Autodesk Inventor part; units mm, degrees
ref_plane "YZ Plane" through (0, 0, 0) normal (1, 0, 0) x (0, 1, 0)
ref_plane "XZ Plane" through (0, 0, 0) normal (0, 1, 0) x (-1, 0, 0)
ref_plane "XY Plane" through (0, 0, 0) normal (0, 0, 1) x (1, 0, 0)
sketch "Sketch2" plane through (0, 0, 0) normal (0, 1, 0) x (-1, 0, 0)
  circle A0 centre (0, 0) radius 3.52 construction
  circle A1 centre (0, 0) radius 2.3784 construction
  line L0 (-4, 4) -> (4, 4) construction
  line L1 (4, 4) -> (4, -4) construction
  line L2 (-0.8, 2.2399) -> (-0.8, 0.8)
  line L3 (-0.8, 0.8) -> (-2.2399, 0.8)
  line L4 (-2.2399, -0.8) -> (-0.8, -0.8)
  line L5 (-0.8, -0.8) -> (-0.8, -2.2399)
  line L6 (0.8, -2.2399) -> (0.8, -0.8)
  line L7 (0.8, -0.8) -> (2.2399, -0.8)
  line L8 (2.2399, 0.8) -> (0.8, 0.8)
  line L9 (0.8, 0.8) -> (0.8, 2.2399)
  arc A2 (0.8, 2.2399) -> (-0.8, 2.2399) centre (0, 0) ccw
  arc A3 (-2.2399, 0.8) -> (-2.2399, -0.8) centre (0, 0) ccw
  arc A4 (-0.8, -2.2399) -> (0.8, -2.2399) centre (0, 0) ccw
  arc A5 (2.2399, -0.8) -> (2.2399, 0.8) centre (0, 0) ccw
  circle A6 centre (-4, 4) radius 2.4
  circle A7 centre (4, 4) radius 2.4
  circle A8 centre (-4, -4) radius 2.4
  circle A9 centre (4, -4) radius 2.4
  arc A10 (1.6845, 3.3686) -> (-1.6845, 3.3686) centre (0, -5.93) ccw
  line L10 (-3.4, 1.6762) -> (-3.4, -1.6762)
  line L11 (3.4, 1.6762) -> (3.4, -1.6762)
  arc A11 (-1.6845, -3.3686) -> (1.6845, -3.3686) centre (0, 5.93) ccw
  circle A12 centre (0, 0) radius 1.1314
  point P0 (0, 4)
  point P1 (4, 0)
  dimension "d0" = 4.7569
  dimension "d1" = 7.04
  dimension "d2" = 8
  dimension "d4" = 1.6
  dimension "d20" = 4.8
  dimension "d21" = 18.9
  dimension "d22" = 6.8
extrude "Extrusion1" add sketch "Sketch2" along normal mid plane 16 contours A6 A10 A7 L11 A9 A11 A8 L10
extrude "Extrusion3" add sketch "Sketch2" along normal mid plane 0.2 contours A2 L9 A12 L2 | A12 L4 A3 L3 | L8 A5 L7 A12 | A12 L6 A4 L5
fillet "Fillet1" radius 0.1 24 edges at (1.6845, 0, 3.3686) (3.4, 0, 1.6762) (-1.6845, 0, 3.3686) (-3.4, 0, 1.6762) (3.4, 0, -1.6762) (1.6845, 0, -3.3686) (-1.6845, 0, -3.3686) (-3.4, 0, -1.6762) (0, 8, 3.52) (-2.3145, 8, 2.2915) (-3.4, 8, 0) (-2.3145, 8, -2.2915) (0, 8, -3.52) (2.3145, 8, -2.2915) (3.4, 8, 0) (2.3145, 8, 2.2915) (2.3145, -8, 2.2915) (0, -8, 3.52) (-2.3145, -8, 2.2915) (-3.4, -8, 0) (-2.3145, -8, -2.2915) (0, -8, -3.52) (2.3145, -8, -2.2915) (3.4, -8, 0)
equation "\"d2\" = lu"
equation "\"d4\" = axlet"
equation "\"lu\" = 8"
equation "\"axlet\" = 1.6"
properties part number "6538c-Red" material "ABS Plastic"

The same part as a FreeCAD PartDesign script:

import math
import FreeCAD as App
import Part
import Sketcher
from FreeCAD import Vector
Q = App.Units.Quantity


def edges_at(feature, points):
    """Names of the edges that pass closest to the given points."""
    edges = feature.Shape.Edges
    near = lambda p: min(range(len(edges)), key=lambda i: edges[i].distToShape(Part.Vertex(*p))[0])
    return sorted({f"Edge{near(p) + 1}" for p in points})

doc = App.newDocument("Part")
body = doc.addObject("PartDesign::Body", "Body")

sketch1 = body.newObject("Sketcher::SketchObject", "Sketch")
sketch1.AttachmentSupport = (doc.getObject("XZ_Plane"), [""])
sketch1.MapMode = "FlatFace"
sketch1.addGeometry(Part.ArcOfCircle(Part.Circle(Vector(4, 4, 0), Vector(0, 0, 1), 2.4), math.radians(-164.747184), math.radians(-104.477453)), False)
sketch1.addGeometry(Part.LineSegment(Vector(3.4, 1.6762, 0), Vector(3.4, -1.6762, 0)), False)
sketch1.addGeometry(Part.ArcOfCircle(Part.Circle(Vector(4, -4, 0), Vector(0, 0, 1), 2.4), math.radians(104.477453), math.radians(164.747184)), False)
sketch1.addGeometry(Part.ArcOfCircle(Part.Circle(Vector(0, 5.93, 0), Vector(0, 0, 1), 9.449947), math.radians(-100.268133), math.radians(-79.731867)), False)
sketch1.addGeometry(Part.ArcOfCircle(Part.Circle(Vector(-4, -4, 0), Vector(0, 0, 1), 2.4), math.radians(15.252816), math.radians(75.522547)), False)
sketch1.addGeometry(Part.LineSegment(Vector(-3.4, -1.6762, 0), Vector(-3.4, 1.6762, 0)), False)
sketch1.addGeometry(Part.ArcOfCircle(Part.Circle(Vector(-4, 4, 0), Vector(0, 0, 1), 2.4), math.radians(-75.522547), math.radians(-15.252816)), False)
sketch1.addGeometry(Part.ArcOfCircle(Part.Circle(Vector(0, -5.93, 0), Vector(0, 0, 1), 9.449947), math.radians(79.731867), math.radians(100.268133)), False)
sketch1.addGeometry(Part.LineSegment(Vector(0.8, 0.8, 0), Vector(0.8, 2.2399, 0)), False)
sketch1.addGeometry(Part.ArcOfCircle(Part.Circle(Vector(0, 0, 0), Vector(0, 0, 1), 2.378477), math.radians(70.345366), math.radians(109.654634)), False)
sketch1.addGeometry(Part.LineSegment(Vector(-0.8, 2.2399, 0), Vector(-0.8, 0.8, 0)), False)
sketch1.addGeometry(Part.LineSegment(Vector(-0.8, 0.8, 0), Vector(-2.2399, 0.8, 0)), False)
sketch1.addGeometry(Part.ArcOfCircle(Part.Circle(Vector(0, 0, 0), Vector(0, 0, 1), 2.378477), math.radians(160.345366), math.radians(199.654634)), False)
sketch1.addGeometry(Part.LineSegment(Vector(-2.2399, -0.8, 0), Vector(-0.8, -0.8, 0)), False)
sketch1.addGeometry(Part.LineSegment(Vector(-0.8, -0.8, 0), Vector(-0.8, -2.2399, 0)), False)
sketch1.addGeometry(Part.ArcOfCircle(Part.Circle(Vector(0, 0, 0), Vector(0, 0, 1), 2.378477), math.radians(-109.654634), math.radians(-70.345366)), False)
sketch1.addGeometry(Part.LineSegment(Vector(0.8, -2.2399, 0), Vector(0.8, -0.8, 0)), False)
sketch1.addGeometry(Part.LineSegment(Vector(0.8, -0.8, 0), Vector(2.2399, -0.8, 0)), False)
sketch1.addGeometry(Part.ArcOfCircle(Part.Circle(Vector(0, 0, 0), Vector(0, 0, 1), 2.378477), math.radians(-19.654634), math.radians(19.654634)), False)
sketch1.addGeometry(Part.LineSegment(Vector(2.2399, 0.8, 0), Vector(0.8, 0.8, 0)), False)
sketch1.addConstraint(Sketcher.Constraint("Coincident", 0, 2, 1, 1))
sketch1.addConstraint(Sketcher.Constraint("Coincident", 1, 2, 2, 1))
sketch1.addConstraint(Sketcher.Constraint("Coincident", 2, 2, 3, 2))
sketch1.addConstraint(Sketcher.Constraint("Coincident", 3, 1, 4, 1))
sketch1.addConstraint(Sketcher.Constraint("Coincident", 4, 2, 5, 1))
sketch1.addConstraint(Sketcher.Constraint("Coincident", 5, 2, 6, 1))
sketch1.addConstraint(Sketcher.Constraint("Coincident", 6, 2, 7, 2))
sketch1.addConstraint(Sketcher.Constraint("Coincident", 7, 1, 0, 1))
sketch1.addConstraint(Sketcher.Constraint("Coincident", 8, 2, 9, 1))
sketch1.addConstraint(Sketcher.Constraint("Coincident", 9, 2, 10, 1))
sketch1.addConstraint(Sketcher.Constraint("Coincident", 10, 2, 11, 1))
sketch1.addConstraint(Sketcher.Constraint("Coincident", 11, 2, 12, 1))
sketch1.addConstraint(Sketcher.Constraint("Coincident", 12, 2, 13, 1))
sketch1.addConstraint(Sketcher.Constraint("Coincident", 13, 2, 14, 1))
sketch1.addConstraint(Sketcher.Constraint("Coincident", 14, 2, 15, 1))
sketch1.addConstraint(Sketcher.Constraint("Coincident", 15, 2, 16, 1))
sketch1.addConstraint(Sketcher.Constraint("Coincident", 16, 2, 17, 1))
sketch1.addConstraint(Sketcher.Constraint("Coincident", 17, 2, 18, 1))
sketch1.addConstraint(Sketcher.Constraint("Coincident", 18, 2, 19, 1))
sketch1.addConstraint(Sketcher.Constraint("Coincident", 19, 2, 8, 1))
sketch1.addConstraint(Sketcher.Constraint("Vertical", 1))
sketch1.addConstraint(Sketcher.Constraint("Vertical", 5))
sketch1.addConstraint(Sketcher.Constraint("Vertical", 8))
sketch1.addConstraint(Sketcher.Constraint("Vertical", 10))
sketch1.addConstraint(Sketcher.Constraint("Horizontal", 11))
sketch1.addConstraint(Sketcher.Constraint("Horizontal", 13))
sketch1.addConstraint(Sketcher.Constraint("Vertical", 14))
sketch1.addConstraint(Sketcher.Constraint("Vertical", 16))
sketch1.addConstraint(Sketcher.Constraint("Horizontal", 17))
sketch1.addConstraint(Sketcher.Constraint("Horizontal", 19))
sketch1.addConstraint(Sketcher.Constraint("Coincident", 9, 3, -1, 1))
sketch1.addConstraint(Sketcher.Constraint("Coincident", 12, 3, -1, 1))
sketch1.addConstraint(Sketcher.Constraint("Coincident", 15, 3, -1, 1))
sketch1.addConstraint(Sketcher.Constraint("Coincident", 18, 3, -1, 1))
sketch1.addConstraint(Sketcher.Constraint("Equal", 0, 2))
sketch1.addConstraint(Sketcher.Constraint("Equal", 2, 4))
sketch1.addConstraint(Sketcher.Constraint("Equal", 4, 6))
sketch1.addConstraint(Sketcher.Constraint("Equal", 3, 7))
sketch1.addConstraint(Sketcher.Constraint("Equal", 9, 12))
sketch1.addConstraint(Sketcher.Constraint("Equal", 12, 15))
sketch1.addConstraint(Sketcher.Constraint("Equal", 15, 18))
sketch1.addConstraint(Sketcher.Constraint("Symmetric", 0, 3, 4, 3, -1, 1))
sketch1.addConstraint(Sketcher.Constraint("Symmetric", 2, 3, 6, 3, -1, 1))
sketch1.addConstraint(Sketcher.Constraint("Symmetric", 3, 3, 7, 3, -1, 1))
sketch1.addConstraint(Sketcher.Constraint("Symmetric", 10, 2, 16, 2, -1, 1))
sketch1.addConstraint(Sketcher.Constraint("Symmetric", 13, 2, 19, 2, -1, 1))
sketch1.addConstraint(Sketcher.Constraint("Symmetric", 2, 3, 4, 3, -2))
sketch1.addConstraint(Sketcher.Constraint("Symmetric", 13, 2, 16, 2, -2))
sketch1.addConstraint(Sketcher.Constraint("PointOnObject", 3, 3, -2))
sketch1.addConstraint(Sketcher.Constraint("Horizontal", 1, 2, 4, 2))
sketch1.addConstraint(Sketcher.Constraint("Equal", 19, 8))
sketch1.addConstraint(Sketcher.Constraint("Radius", 0, Q("2.4 mm")))
sketch1.addConstraint(Sketcher.Constraint("Radius", 3, Q("9.45 mm")))
sketch1.addConstraint(Sketcher.Constraint("DistanceY", 2, 3, 0, 3, Q("8 mm")))
sketch1.addConstraint(Sketcher.Constraint("DistanceX", 4, 3, 2, 3, Q("8 mm")))
sketch1.addConstraint(Sketcher.Constraint("Radius", 9, Q("2.3785 mm")))
sketch1.addConstraint(Sketcher.Constraint("DistanceX", 9, 2, 8, 2, Q("1.6 mm")))
sketch1.addConstraint(Sketcher.Constraint("DistanceX", -1, 1, 0, 2, Q("3.4 mm")))
sketch1.addConstraint(Sketcher.Constraint("DistanceY", -1, 1, 3, 3, Q("5.93 mm")))
pad1 = body.newObject("PartDesign::Pad", "Pad")
pad1.Profile = sketch1
pad1.Length = 16
pad1.Midplane = True

sketch2 = body.newObject("Sketcher::SketchObject", "Sketch001")
sketch2.AttachmentSupport = (doc.getObject("XZ_Plane"), [""])
sketch2.MapMode = "FlatFace"
sketch2.addGeometry(Part.ArcOfCircle(Part.Circle(Vector(0, 0, 0), Vector(0, 0, 1), 2.378477), math.radians(70.345366), math.radians(109.654634)), False)
sketch2.addGeometry(Part.LineSegment(Vector(0.8, 2.2399, 0), Vector(0.8, 0.8, 0)), False)
sketch2.addGeometry(Part.ArcOfCircle(Part.Circle(Vector(0, 0, 0), Vector(0, 0, 1), 1.1314), math.radians(45), math.radians(135)), False)
sketch2.addGeometry(Part.LineSegment(Vector(-0.8, 0.8, 0), Vector(-0.8, 2.2399, 0)), False)
sketch2.addGeometry(Part.ArcOfCircle(Part.Circle(Vector(0, 0, 0), Vector(0, 0, 1), 1.1314), math.radians(-45), math.radians(45)), False)
sketch2.addGeometry(Part.LineSegment(Vector(0.8, 0.8, 0), Vector(2.2399, 0.8, 0)), False)
sketch2.addGeometry(Part.ArcOfCircle(Part.Circle(Vector(0, 0, 0), Vector(0, 0, 1), 2.378477), math.radians(-19.654634), math.radians(19.654634)), False)
sketch2.addGeometry(Part.LineSegment(Vector(2.2399, -0.8, 0), Vector(0.8, -0.8, 0)), False)
sketch2.addGeometry(Part.LineSegment(Vector(-2.2399, 0.8, 0), Vector(-0.8, 0.8, 0)), False)
sketch2.addGeometry(Part.ArcOfCircle(Part.Circle(Vector(0, 0, 0), Vector(0, 0, 1), 1.1314), math.radians(135), math.radians(225)), False)
sketch2.addGeometry(Part.LineSegment(Vector(-0.8, -0.8, 0), Vector(-2.2399, -0.8, 0)), False)
sketch2.addGeometry(Part.ArcOfCircle(Part.Circle(Vector(0, 0, 0), Vector(0, 0, 1), 2.378477), math.radians(160.345366), math.radians(199.654634)), False)
sketch2.addGeometry(Part.ArcOfCircle(Part.Circle(Vector(0, 0, 0), Vector(0, 0, 1), 1.1314), math.radians(-135), math.radians(-45)), False)
sketch2.addGeometry(Part.LineSegment(Vector(0.8, -0.8, 0), Vector(0.8, -2.2399, 0)), False)
sketch2.addGeometry(Part.ArcOfCircle(Part.Circle(Vector(0, 0, 0), Vector(0, 0, 1), 2.378477), math.radians(-109.654634), math.radians(-70.345366)), False)
sketch2.addGeometry(Part.LineSegment(Vector(-0.8, -2.2399, 0), Vector(-0.8, -0.8, 0)), False)
sketch2.addConstraint(Sketcher.Constraint("Coincident", 0, 1, 1, 1))
sketch2.addConstraint(Sketcher.Constraint("Coincident", 1, 2, 2, 1))
sketch2.addConstraint(Sketcher.Constraint("Coincident", 2, 2, 3, 1))
sketch2.addConstraint(Sketcher.Constraint("Coincident", 3, 2, 0, 2))
sketch2.addConstraint(Sketcher.Constraint("Coincident", 4, 2, 5, 1))
sketch2.addConstraint(Sketcher.Constraint("Coincident", 5, 2, 6, 2))
sketch2.addConstraint(Sketcher.Constraint("Coincident", 6, 1, 7, 1))
sketch2.addConstraint(Sketcher.Constraint("Coincident", 7, 2, 4, 1))
sketch2.addConstraint(Sketcher.Constraint("Coincident", 8, 2, 9, 1))
sketch2.addConstraint(Sketcher.Constraint("Coincident", 9, 2, 10, 1))
sketch2.addConstraint(Sketcher.Constraint("Coincident", 10, 2, 11, 2))
sketch2.addConstraint(Sketcher.Constraint("Coincident", 11, 1, 8, 1))
sketch2.addConstraint(Sketcher.Constraint("Coincident", 12, 2, 13, 1))
sketch2.addConstraint(Sketcher.Constraint("Coincident", 13, 2, 14, 2))
sketch2.addConstraint(Sketcher.Constraint("Coincident", 14, 1, 15, 1))
sketch2.addConstraint(Sketcher.Constraint("Coincident", 15, 2, 12, 1))
sketch2.addConstraint(Sketcher.Constraint("Vertical", 1))
sketch2.addConstraint(Sketcher.Constraint("Vertical", 3))
sketch2.addConstraint(Sketcher.Constraint("Horizontal", 5))
sketch2.addConstraint(Sketcher.Constraint("Horizontal", 7))
sketch2.addConstraint(Sketcher.Constraint("Horizontal", 8))
sketch2.addConstraint(Sketcher.Constraint("Horizontal", 10))
sketch2.addConstraint(Sketcher.Constraint("Vertical", 13))
sketch2.addConstraint(Sketcher.Constraint("Vertical", 15))
sketch2.addConstraint(Sketcher.Constraint("Coincident", 0, 3, -1, 1))
sketch2.addConstraint(Sketcher.Constraint("Coincident", 2, 3, -1, 1))
sketch2.addConstraint(Sketcher.Constraint("Coincident", 4, 3, -1, 1))
sketch2.addConstraint(Sketcher.Constraint("Coincident", 6, 3, -1, 1))
sketch2.addConstraint(Sketcher.Constraint("Coincident", 9, 3, -1, 1))
sketch2.addConstraint(Sketcher.Constraint("Coincident", 11, 3, -1, 1))
sketch2.addConstraint(Sketcher.Constraint("Coincident", 12, 3, -1, 1))
sketch2.addConstraint(Sketcher.Constraint("Coincident", 14, 3, -1, 1))
sketch2.addConstraint(Sketcher.Constraint("Coincident", 4, 2, 1, 2))
sketch2.addConstraint(Sketcher.Constraint("Coincident", 8, 2, 2, 2))
sketch2.addConstraint(Sketcher.Constraint("Coincident", 12, 2, 7, 2))
sketch2.addConstraint(Sketcher.Constraint("Equal", 0, 6))
sketch2.addConstraint(Sketcher.Constraint("Equal", 6, 11))
sketch2.addConstraint(Sketcher.Constraint("Equal", 11, 14))
sketch2.addConstraint(Sketcher.Constraint("Horizontal", 1, 2, 2, 2))
sketch2.addConstraint(Sketcher.Constraint("Horizontal", 7, 2, 9, 2))
sketch2.addConstraint(Sketcher.Constraint("Horizontal", 13, 2, 14, 1))
sketch2.addConstraint(Sketcher.Constraint("Vertical", 5, 2, 6, 1))
sketch2.addConstraint(Sketcher.Constraint("Equal", 10, 1))
sketch2.addConstraint(Sketcher.Constraint("Radius", 0, Q("2.3785 mm")))
sketch2.addConstraint(Sketcher.Constraint("DistanceX", 3, 2, 0, 1, Q("1.6 mm")))
pad2 = body.newObject("PartDesign::Pad", "Pad001")
pad2.Profile = sketch2
pad2.Length = 0.2
pad2.Midplane = True
doc.recompute()

fillet = body.newObject("PartDesign::Fillet", "Fillet")
fillet.Base = (pad2, edges_at(pad2, [
    (1.685, 0, 3.369),
    (3.4, 0, 1.676),
    (-1.685, 0, 3.369),
    (-3.4, 0, 1.676),
    (3.4, 0, -1.676),
    (1.685, 0, -3.369),
    (-1.685, 0, -3.369),
    (-3.4, 0, -1.676),
    (0, 8, 3.52),
    (-2.314, 8, 2.292),
    (-3.4, 8, 0),
    (-2.314, 8, -2.292),
    (0, 8, -3.52),
    (2.314, 8, -2.292),
    (3.4, 8, 0),
    (2.314, 8, 2.292),
    (2.314, -8, 2.292),
    (0, -8, 3.52),
    (-2.314, -8, 2.292),
    (-3.4, -8, 0),
    (-2.314, -8, -2.292),
    (0, -8, -3.52),
    (2.314, -8, -2.292),
    (3.4, -8, 0),
]))
fillet.Radius = 0.1

doc.recompute()
